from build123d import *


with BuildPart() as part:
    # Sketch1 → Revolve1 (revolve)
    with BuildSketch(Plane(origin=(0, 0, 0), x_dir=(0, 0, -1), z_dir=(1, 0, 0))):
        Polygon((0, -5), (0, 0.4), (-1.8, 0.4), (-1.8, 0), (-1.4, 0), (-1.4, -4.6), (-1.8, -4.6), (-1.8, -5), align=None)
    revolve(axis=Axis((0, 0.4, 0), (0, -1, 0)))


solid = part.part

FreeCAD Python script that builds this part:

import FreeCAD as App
import Part
import Sketcher
Q = App.Units.Quantity


def add_polygon(sketch, points):
    """Adds a closed chain of lines whose ends are joined by coincident constraints."""
    first, n = sketch.GeometryCount, len(points)
    for a, b in zip(points, points[1:] + points[:1]):
        sketch.addGeometry(Part.LineSegment(App.Vector(*a, 0), App.Vector(*b, 0)), False)
    for i in range(n):
        sketch.addConstraint(Sketcher.Constraint("Coincident", first + i, 2, first + (i + 1) % n, 1))

doc = App.newDocument("Part")
body = doc.addObject("PartDesign::Body", "Body")

# Sketch on YZ plane
sketch1 = body.newObject("Sketcher::SketchObject", "Sketch")
sketch1.AttachmentSupport = (doc.getObject("YZ_Plane"), [""])
sketch1.MapMode = "FlatFace"
add_polygon(sketch1, [(-5, 0), (0.4, 0), (0.4, 1.8), (0, 1.8), (0, 1.4), (-4.6, 1.4), (-4.6, 1.8), (-5, 1.8)])  # lines 0-7
sketch1.addConstraint(Sketcher.Constraint("Horizontal", 0))
sketch1.addConstraint(Sketcher.Constraint("Vertical", 1))
sketch1.addConstraint(Sketcher.Constraint("Horizontal", 2))
sketch1.addConstraint(Sketcher.Constraint("Vertical", 3))
sketch1.addConstraint(Sketcher.Constraint("Horizontal", 4))
sketch1.addConstraint(Sketcher.Constraint("Vertical", 5))
sketch1.addConstraint(Sketcher.Constraint("Horizontal", 6))
sketch1.addConstraint(Sketcher.Constraint("Vertical", 7))
sketch1.addConstraint(Sketcher.Constraint("PointOnObject", 0, 2, -1))
sketch1.addConstraint(Sketcher.Constraint("PointOnObject", 2, 2, -2))
sketch1.addConstraint(Sketcher.Constraint("Horizontal", 2, 2, 5, 2))
sketch1.addConstraint(Sketcher.Constraint("Equal", 2, 6))
sketch1.addConstraint(Sketcher.Constraint("Equal", 6, 3))
sketch1.addConstraint(Sketcher.Constraint("DistanceX", 0, 1, 0, 2, Q("5.4 mm")))
sketch1.addConstraint(Sketcher.Constraint("DistanceX", 2, 2, 2, 1, Q("0.4 mm")))
sketch1.addConstraint(Sketcher.Constraint("DistanceY", 1, 1, 1, 2, Q("1.8 mm")))
revolution = body.newObject("PartDesign::Revolution", "Revolution")
revolution.Profile = sketch1
revolution.ReferenceAxis = (sketch1, ["H_Axis"])
revolution.Angle = 360

doc.recompute()
